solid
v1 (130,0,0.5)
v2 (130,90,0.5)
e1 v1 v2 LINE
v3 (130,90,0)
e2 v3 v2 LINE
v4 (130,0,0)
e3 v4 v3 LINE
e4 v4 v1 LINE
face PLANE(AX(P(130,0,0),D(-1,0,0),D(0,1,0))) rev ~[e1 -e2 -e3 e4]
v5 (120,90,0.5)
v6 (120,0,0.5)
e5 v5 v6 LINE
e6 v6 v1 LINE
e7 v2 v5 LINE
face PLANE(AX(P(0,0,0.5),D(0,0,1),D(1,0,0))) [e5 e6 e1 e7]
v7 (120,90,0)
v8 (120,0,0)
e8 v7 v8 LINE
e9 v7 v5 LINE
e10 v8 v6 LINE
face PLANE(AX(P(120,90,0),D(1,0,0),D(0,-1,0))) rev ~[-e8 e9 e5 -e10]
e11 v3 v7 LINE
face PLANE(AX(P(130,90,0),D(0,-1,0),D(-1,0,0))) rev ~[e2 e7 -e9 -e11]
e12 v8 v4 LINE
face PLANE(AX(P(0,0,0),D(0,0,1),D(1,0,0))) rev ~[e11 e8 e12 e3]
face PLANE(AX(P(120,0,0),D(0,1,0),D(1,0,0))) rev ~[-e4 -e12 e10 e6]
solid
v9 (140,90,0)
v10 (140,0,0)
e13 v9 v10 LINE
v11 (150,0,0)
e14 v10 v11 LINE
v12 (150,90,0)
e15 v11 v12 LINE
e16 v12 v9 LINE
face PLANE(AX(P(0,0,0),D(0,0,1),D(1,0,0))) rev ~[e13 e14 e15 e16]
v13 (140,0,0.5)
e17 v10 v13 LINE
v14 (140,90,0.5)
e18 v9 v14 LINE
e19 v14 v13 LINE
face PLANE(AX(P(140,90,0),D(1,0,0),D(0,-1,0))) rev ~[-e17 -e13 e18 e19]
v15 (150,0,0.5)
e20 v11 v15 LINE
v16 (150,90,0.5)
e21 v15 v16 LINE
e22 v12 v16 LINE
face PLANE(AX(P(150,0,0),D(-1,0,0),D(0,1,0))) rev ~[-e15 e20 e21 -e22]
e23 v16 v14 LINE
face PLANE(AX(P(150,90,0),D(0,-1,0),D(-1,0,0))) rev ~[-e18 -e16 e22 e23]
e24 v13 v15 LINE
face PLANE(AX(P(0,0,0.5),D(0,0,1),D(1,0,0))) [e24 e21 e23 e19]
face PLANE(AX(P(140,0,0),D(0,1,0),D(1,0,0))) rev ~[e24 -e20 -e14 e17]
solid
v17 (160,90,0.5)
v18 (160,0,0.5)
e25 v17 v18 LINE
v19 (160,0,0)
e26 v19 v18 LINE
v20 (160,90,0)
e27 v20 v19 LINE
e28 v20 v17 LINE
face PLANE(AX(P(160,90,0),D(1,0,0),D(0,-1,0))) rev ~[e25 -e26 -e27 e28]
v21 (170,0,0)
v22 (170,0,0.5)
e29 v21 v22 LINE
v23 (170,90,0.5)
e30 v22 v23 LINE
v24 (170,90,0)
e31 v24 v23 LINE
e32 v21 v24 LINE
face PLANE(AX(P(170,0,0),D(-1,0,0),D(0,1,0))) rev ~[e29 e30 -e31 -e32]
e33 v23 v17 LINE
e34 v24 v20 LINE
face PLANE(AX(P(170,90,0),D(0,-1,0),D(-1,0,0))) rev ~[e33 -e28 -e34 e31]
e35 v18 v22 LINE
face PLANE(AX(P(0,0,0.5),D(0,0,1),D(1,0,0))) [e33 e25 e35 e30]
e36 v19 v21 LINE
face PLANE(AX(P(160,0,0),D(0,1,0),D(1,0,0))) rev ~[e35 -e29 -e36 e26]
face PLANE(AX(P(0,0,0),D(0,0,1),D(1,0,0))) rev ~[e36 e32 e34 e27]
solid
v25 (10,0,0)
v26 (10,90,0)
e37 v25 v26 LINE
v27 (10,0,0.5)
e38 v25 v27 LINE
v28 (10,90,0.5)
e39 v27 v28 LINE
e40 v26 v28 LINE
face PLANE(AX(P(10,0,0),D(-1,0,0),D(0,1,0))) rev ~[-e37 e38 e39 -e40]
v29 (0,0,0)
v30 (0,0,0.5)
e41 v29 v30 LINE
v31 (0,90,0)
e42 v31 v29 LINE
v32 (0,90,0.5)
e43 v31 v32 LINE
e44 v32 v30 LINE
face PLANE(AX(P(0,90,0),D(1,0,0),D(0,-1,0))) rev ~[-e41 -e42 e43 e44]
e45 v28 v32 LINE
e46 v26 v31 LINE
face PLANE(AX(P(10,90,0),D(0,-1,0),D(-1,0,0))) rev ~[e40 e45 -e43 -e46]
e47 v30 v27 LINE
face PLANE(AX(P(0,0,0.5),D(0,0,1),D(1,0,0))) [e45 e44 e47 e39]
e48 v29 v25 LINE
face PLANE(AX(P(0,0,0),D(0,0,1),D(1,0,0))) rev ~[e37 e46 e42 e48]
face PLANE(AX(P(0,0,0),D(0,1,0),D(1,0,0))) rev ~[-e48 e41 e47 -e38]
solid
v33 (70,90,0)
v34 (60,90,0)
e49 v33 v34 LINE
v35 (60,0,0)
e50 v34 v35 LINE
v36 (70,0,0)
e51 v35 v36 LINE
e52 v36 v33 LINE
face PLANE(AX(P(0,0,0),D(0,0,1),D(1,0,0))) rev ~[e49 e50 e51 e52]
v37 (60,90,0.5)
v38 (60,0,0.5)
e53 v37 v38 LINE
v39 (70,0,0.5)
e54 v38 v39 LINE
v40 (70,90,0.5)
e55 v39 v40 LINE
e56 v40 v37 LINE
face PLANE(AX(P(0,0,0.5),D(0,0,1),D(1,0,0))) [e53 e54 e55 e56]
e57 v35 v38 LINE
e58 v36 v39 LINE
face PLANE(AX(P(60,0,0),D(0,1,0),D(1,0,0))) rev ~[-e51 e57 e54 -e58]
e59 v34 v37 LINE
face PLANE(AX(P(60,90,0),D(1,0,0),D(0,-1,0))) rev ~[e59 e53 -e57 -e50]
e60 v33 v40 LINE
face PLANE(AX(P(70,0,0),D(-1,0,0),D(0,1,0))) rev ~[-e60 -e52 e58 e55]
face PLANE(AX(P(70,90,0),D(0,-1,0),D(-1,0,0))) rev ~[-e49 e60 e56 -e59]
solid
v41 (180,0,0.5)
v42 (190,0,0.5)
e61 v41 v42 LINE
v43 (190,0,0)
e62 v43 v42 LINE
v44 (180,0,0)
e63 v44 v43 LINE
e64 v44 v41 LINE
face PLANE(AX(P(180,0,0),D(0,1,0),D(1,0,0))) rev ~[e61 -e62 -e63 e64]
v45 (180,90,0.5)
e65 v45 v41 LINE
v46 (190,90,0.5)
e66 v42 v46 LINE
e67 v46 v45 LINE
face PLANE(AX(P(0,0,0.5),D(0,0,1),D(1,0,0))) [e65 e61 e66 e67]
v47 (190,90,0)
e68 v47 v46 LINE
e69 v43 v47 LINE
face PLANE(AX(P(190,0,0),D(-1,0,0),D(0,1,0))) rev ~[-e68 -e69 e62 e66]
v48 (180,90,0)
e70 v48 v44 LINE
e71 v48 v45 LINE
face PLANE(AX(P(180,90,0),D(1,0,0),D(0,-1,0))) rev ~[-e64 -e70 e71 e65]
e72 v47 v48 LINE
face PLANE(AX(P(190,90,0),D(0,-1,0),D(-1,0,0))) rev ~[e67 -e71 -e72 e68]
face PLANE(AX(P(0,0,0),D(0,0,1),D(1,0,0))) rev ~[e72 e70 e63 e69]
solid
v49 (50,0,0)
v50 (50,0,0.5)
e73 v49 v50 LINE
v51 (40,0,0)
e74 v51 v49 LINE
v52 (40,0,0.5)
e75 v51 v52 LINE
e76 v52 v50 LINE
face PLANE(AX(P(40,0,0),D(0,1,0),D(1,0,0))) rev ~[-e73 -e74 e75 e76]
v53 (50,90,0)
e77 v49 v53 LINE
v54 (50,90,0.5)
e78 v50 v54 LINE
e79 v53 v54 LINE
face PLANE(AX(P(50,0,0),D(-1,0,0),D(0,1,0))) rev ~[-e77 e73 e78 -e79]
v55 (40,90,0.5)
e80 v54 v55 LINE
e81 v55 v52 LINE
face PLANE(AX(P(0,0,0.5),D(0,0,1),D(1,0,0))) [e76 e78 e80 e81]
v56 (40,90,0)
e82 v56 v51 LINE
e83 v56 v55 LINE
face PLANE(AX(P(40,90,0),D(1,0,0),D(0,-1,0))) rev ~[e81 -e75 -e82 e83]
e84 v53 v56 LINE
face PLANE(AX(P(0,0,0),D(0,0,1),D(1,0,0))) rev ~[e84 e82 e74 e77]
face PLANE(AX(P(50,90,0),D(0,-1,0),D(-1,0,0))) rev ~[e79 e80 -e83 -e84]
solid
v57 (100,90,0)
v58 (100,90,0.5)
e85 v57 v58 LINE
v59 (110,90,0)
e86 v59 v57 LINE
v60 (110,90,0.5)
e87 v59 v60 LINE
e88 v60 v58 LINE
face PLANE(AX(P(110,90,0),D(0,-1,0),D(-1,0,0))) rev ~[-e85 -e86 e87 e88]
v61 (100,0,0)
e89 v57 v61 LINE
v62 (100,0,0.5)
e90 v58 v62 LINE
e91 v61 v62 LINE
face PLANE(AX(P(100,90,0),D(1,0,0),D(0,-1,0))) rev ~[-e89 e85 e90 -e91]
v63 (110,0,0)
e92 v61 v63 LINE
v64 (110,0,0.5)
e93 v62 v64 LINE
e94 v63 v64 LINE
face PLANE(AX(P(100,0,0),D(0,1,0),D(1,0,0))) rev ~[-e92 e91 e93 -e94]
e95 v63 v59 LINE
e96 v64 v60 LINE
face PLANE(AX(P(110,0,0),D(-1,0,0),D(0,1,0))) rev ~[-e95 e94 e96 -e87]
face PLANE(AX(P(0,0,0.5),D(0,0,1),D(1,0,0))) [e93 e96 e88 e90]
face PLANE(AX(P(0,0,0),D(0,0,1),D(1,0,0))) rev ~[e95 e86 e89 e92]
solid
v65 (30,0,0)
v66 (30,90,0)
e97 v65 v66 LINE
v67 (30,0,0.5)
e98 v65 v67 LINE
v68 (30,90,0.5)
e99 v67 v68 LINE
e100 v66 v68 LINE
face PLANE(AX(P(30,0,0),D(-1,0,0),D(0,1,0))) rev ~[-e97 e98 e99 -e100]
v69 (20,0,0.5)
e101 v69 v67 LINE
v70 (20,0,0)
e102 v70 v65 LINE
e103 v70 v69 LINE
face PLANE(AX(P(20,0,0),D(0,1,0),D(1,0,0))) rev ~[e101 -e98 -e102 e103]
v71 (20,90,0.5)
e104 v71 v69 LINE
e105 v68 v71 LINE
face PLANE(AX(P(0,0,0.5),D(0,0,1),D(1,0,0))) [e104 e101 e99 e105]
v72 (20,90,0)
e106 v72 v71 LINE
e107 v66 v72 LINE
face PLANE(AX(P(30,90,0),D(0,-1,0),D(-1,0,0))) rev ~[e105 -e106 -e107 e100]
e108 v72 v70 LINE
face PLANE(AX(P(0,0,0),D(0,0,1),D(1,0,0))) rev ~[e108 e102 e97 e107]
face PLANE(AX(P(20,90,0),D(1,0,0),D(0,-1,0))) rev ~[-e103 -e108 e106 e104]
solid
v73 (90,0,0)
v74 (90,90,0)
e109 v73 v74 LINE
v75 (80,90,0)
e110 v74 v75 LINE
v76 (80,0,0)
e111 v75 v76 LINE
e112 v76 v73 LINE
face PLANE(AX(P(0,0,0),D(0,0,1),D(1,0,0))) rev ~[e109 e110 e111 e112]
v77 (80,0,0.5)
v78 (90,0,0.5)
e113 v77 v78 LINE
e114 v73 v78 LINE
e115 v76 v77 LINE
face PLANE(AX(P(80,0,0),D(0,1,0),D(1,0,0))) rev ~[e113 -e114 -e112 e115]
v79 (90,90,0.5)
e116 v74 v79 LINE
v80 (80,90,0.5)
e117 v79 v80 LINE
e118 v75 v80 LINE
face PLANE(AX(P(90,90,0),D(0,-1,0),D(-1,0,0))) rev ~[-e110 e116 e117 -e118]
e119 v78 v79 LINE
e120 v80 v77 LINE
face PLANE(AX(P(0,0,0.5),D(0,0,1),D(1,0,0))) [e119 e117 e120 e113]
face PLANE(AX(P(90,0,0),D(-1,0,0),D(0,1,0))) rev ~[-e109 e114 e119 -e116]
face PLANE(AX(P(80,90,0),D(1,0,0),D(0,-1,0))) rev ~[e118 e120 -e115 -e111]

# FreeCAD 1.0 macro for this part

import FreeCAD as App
import Part
import Sketcher

V = App.Vector
Q = App.Units.Quantity

doc = App.newDocument("Part")
body = doc.addObject("PartDesign::Body", "Body")
body.AllowCompound = True

# Sketch on XY plane
sketch1 = body.newObject("Sketcher::SketchObject", "Sketch")
sketch1.AttachmentSupport = (doc.getObject("XY_Plane"), [""])
sketch1.MapMode = "FlatFace"
sketch1.addGeometry(Part.LineSegment(V(0, 90, 0), V(0, 0, 0)), False)
sketch1.addGeometry(Part.LineSegment(V(0, 0, 0), V(10, 0, 0)), False)
sketch1.addGeometry(Part.LineSegment(V(10, 0, 0), V(10, 90, 0)), False)
sketch1.addGeometry(Part.LineSegment(V(10, 90, 0), V(0, 90, 0)), False)
sketch1.addGeometry(Part.LineSegment(V(30, 90, 0), V(20, 90, 0)), False)
sketch1.addGeometry(Part.LineSegment(V(20, 90, 0), V(20, 0, 0)), False)
sketch1.addGeometry(Part.LineSegment(V(20, 0, 0), V(30, 0, 0)), False)
sketch1.addGeometry(Part.LineSegment(V(30, 0, 0), V(30, 90, 0)), False)
sketch1.addGeometry(Part.LineSegment(V(50, 90, 0), V(40, 90, 0)), False)
sketch1.addGeometry(Part.LineSegment(V(40, 90, 0), V(40, 0, 0)), False)
sketch1.addGeometry(Part.LineSegment(V(40, 0, 0), V(50, 0, 0)), False)
sketch1.addGeometry(Part.LineSegment(V(50, 0, 0), V(50, 90, 0)), False)
sketch1.addGeometry(Part.LineSegment(V(70, 90, 0), V(60, 90, 0)), False)
sketch1.addGeometry(Part.LineSegment(V(60, 90, 0), V(60, 0, 0)), False)
sketch1.addGeometry(Part.LineSegment(V(60, 0, 0), V(70, 0, 0)), False)
sketch1.addGeometry(Part.LineSegment(V(70, 0, 0), V(70, 90, 0)), False)
sketch1.addGeometry(Part.LineSegment(V(90, 90, 0), V(80, 90, 0)), False)
sketch1.addGeometry(Part.LineSegment(V(80, 90, 0), V(80, 0, 0)), False)
sketch1.addGeometry(Part.LineSegment(V(80, 0, 0), V(90, 0, 0)), False)
sketch1.addGeometry(Part.LineSegment(V(90, 0, 0), V(90, 90, 0)), False)
sketch1.addGeometry(Part.LineSegment(V(110, 90, 0), V(100, 90, 0)), False)
sketch1.addGeometry(Part.LineSegment(V(100, 90, 0), V(100, 0, 0)), False)
sketch1.addGeometry(Part.LineSegment(V(100, 0, 0), V(110, 0, 0)), False)
sketch1.addGeometry(Part.LineSegment(V(110, 0, 0), V(110, 90, 0)), False)
sketch1.addGeometry(Part.LineSegment(V(130, 90, 0), V(120, 90, 0)), False)
sketch1.addGeometry(Part.LineSegment(V(120, 90, 0), V(120, 0, 0)), False)
sketch1.addGeometry(Part.LineSegment(V(120, 0, 0), V(130, 0, 0)), False)
sketch1.addGeometry(Part.LineSegment(V(130, 0, 0), V(130, 90, 0)), False)
sketch1.addGeometry(Part.LineSegment(V(150, 90, 0), V(140, 90, 0)), False)
sketch1.addGeometry(Part.LineSegment(V(140, 90, 0), V(140, 0, 0)), False)
sketch1.addGeometry(Part.LineSegment(V(140, 0, 0), V(150, 0, 0)), False)
sketch1.addGeometry(Part.LineSegment(V(150, 0, 0), V(150, 90, 0)), False)
sketch1.addGeometry(Part.LineSegment(V(170, 90, 0), V(160, 90, 0)), False)
sketch1.addGeometry(Part.LineSegment(V(160, 90, 0), V(160, 0, 0)), False)
sketch1.addGeometry(Part.LineSegment(V(160, 0, 0), V(170, 0, 0)), False)
sketch1.addGeometry(Part.LineSegment(V(170, 0, 0), V(170, 90, 0)), False)
sketch1.addGeometry(Part.LineSegment(V(190, 90, 0), V(180, 90, 0)), False)
sketch1.addGeometry(Part.LineSegment(V(180, 90, 0), V(180, 0, 0)), False)
sketch1.addGeometry(Part.LineSegment(V(180, 0, 0), V(190, 0, 0)), False)
sketch1.addGeometry(Part.LineSegment(V(190, 0, 0), V(190, 90, 0)), False)
sketch1.addConstraint(Sketcher.Constraint("Coincident", 0, 2, 1, 1))
sketch1.addConstraint(Sketcher.Constraint("Coincident", 1, 2, 2, 1))
sketch1.addConstraint(Sketcher.Constraint("Coincident", 2, 2, 3, 1))
sketch1.addConstraint(Sketcher.Constraint("Coincident", 3, 2, 0, 1))
sketch1.addConstraint(Sketcher.Constraint("Coincident", 4, 2, 5, 1))
sketch1.addConstraint(Sketcher.Constraint("Coincident", 5, 2, 6, 1))
sketch1.addConstraint(Sketcher.Constraint("Coincident", 6, 2, 7, 1))
sketch1.addConstraint(Sketcher.Constraint("Coincident", 7, 2, 4, 1))
sketch1.addConstraint(Sketcher.Constraint("Coincident", 8, 2, 9, 1))
sketch1.addConstraint(Sketcher.Constraint("Coincident", 9, 2, 10, 1))
sketch1.addConstraint(Sketcher.Constraint("Coincident", 10, 2, 11, 1))
sketch1.addConstraint(Sketcher.Constraint("Coincident", 11, 2, 8, 1))
sketch1.addConstraint(Sketcher.Constraint("Coincident", 12, 2, 13, 1))
sketch1.addConstraint(Sketcher.Constraint("Coincident", 13, 2, 14, 1))
sketch1.addConstraint(Sketcher.Constraint("Coincident", 14, 2, 15, 1))
sketch1.addConstraint(Sketcher.Constraint("Coincident", 15, 2, 12, 1))
sketch1.addConstraint(Sketcher.Constraint("Coincident", 16, 2, 17, 1))
sketch1.addConstraint(Sketcher.Constraint("Coincident", 17, 2, 18, 1))
sketch1.addConstraint(Sketcher.Constraint("Coincident", 18, 2, 19, 1))
sketch1.addConstraint(Sketcher.Constraint("Coincident", 19, 2, 16, 1))
sketch1.addConstraint(Sketcher.Constraint("Coincident", 20, 2, 21, 1))
sketch1.addConstraint(Sketcher.Constraint("Coincident", 21, 2, 22, 1))
sketch1.addConstraint(Sketcher.Constraint("Coincident", 22, 2, 23, 1))
sketch1.addConstraint(Sketcher.Constraint("Coincident", 23, 2, 20, 1))
sketch1.addConstraint(Sketcher.Constraint("Coincident", 24, 2, 25, 1))
sketch1.addConstraint(Sketcher.Constraint("Coincident", 25, 2, 26, 1))
sketch1.addConstraint(Sketcher.Constraint("Coincident", 26, 2, 27, 1))
sketch1.addConstraint(Sketcher.Constraint("Coincident", 27, 2, 24, 1))
sketch1.addConstraint(Sketcher.Constraint("Coincident", 28, 2, 29, 1))
sketch1.addConstraint(Sketcher.Constraint("Coincident", 29, 2, 30, 1))
sketch1.addConstraint(Sketcher.Constraint("Coincident", 30, 2, 31, 1))
sketch1.addConstraint(Sketcher.Constraint("Coincident", 31, 2, 28, 1))
sketch1.addConstraint(Sketcher.Constraint("Coincident", 32, 2, 33, 1))
sketch1.addConstraint(Sketcher.Constraint("Coincident", 33, 2, 34, 1))
sketch1.addConstraint(Sketcher.Constraint("Coincident", 34, 2, 35, 1))
sketch1.addConstraint(Sketcher.Constraint("Coincident", 35, 2, 32, 1))
sketch1.addConstraint(Sketcher.Constraint("Coincident", 36, 2, 37, 1))
sketch1.addConstraint(Sketcher.Constraint("Coincident", 37, 2, 38, 1))
sketch1.addConstraint(Sketcher.Constraint("Coincident", 38, 2, 39, 1))
sketch1.addConstraint(Sketcher.Constraint("Coincident", 39, 2, 36, 1))
sketch1.addConstraint(Sketcher.Constraint("Vertical", 0))
sketch1.addConstraint(Sketcher.Constraint("Horizontal", 1))
sketch1.addConstraint(Sketcher.Constraint("Vertical", 2))
sketch1.addConstraint(Sketcher.Constraint("Horizontal", 3))
sketch1.addConstraint(Sketcher.Constraint("Horizontal", 4))
sketch1.addConstraint(Sketcher.Constraint("Vertical", 5))
sketch1.addConstraint(Sketcher.Constraint("Horizontal", 6))
sketch1.addConstraint(Sketcher.Constraint("Vertical", 7))
sketch1.addConstraint(Sketcher.Constraint("Horizontal", 8))
sketch1.addConstraint(Sketcher.Constraint("Vertical", 9))
sketch1.addConstraint(Sketcher.Constraint("Horizontal", 10))
sketch1.addConstraint(Sketcher.Constraint("Vertical", 11))
sketch1.addConstraint(Sketcher.Constraint("Horizontal", 12))
sketch1.addConstraint(Sketcher.Constraint("Vertical", 13))
sketch1.addConstraint(Sketcher.Constraint("Horizontal", 14))
sketch1.addConstraint(Sketcher.Constraint("Vertical", 15))
sketch1.addConstraint(Sketcher.Constraint("Horizontal", 16))
sketch1.addConstraint(Sketcher.Constraint("Vertical", 17))
sketch1.addConstraint(Sketcher.Constraint("Horizontal", 18))
sketch1.addConstraint(Sketcher.Constraint("Vertical", 19))
sketch1.addConstraint(Sketcher.Constraint("Horizontal", 20))
sketch1.addConstraint(Sketcher.Constraint("Vertical", 21))
sketch1.addConstraint(Sketcher.Constraint("Horizontal", 22))
sketch1.addConstraint(Sketcher.Constraint("Vertical", 23))
sketch1.addConstraint(Sketcher.Constraint("Horizontal", 24))
sketch1.addConstraint(Sketcher.Constraint("Vertical", 25))
sketch1.addConstraint(Sketcher.Constraint("Horizontal", 26))
sketch1.addConstraint(Sketcher.Constraint("Vertical", 27))
sketch1.addConstraint(Sketcher.Constraint("Horizontal", 28))
sketch1.addConstraint(Sketcher.Constraint("Vertical", 29))
sketch1.addConstraint(Sketcher.Constraint("Horizontal", 30))
sketch1.addConstraint(Sketcher.Constraint("Vertical", 31))
sketch1.addConstraint(Sketcher.Constraint("Horizontal", 32))
sketch1.addConstraint(Sketcher.Constraint("Vertical", 33))
sketch1.addConstraint(Sketcher.Constraint("Horizontal", 34))
sketch1.addConstraint(Sketcher.Constraint("Vertical", 35))
sketch1.addConstraint(Sketcher.Constraint("Horizontal", 36))
sketch1.addConstraint(Sketcher.Constraint("Vertical", 37))
sketch1.addConstraint(Sketcher.Constraint("Horizontal", 38))
sketch1.addConstraint(Sketcher.Constraint("Vertical", 39))
sketch1.addConstraint(Sketcher.Constraint("Coincident", 0, 2, -1, 1))
sketch1.addConstraint(Sketcher.Constraint("PointOnObject", 5, 2, -1))
sketch1.addConstraint(Sketcher.Constraint("PointOnObject", 9, 2, -1))
sketch1.addConstraint(Sketcher.Constraint("PointOnObject", 13, 2, -1))
sketch1.addConstraint(Sketcher.Constraint("PointOnObject", 17, 2, -1))
sketch1.addConstraint(Sketcher.Constraint("PointOnObject", 21, 2, -1))
sketch1.addConstraint(Sketcher.Constraint("PointOnObject", 25, 2, -1))
sketch1.addConstraint(Sketcher.Constraint("PointOnObject", 29, 2, -1))
sketch1.addConstraint(Sketcher.Constraint("PointOnObject", 33, 2, -1))
sketch1.addConstraint(Sketcher.Constraint("PointOnObject", 37, 2, -1))
sketch1.addConstraint(Sketcher.Constraint("Horizontal", 3, 2, 4, 2))
sketch1.addConstraint(Sketcher.Constraint("Horizontal", 7, 2, 8, 2))
sketch1.addConstraint(Sketcher.Constraint("Horizontal", 11, 2, 12, 2))
sketch1.addConstraint(Sketcher.Constraint("Horizontal", 15, 2, 16, 2))
sketch1.addConstraint(Sketcher.Constraint("Horizontal", 19, 2, 20, 2))
sketch1.addConstraint(Sketcher.Constraint("Horizontal", 23, 2, 24, 2))
sketch1.addConstraint(Sketcher.Constraint("Horizontal", 27, 2, 28, 2))
sketch1.addConstraint(Sketcher.Constraint("Horizontal", 31, 2, 32, 2))
sketch1.addConstraint(Sketcher.Constraint("Horizontal", 35, 2, 36, 2))
sketch1.addConstraint(Sketcher.Constraint("Equal", 3, 4))
sketch1.addConstraint(Sketcher.Constraint("Equal", 6, 8))
sketch1.addConstraint(Sketcher.Constraint("Equal", 10, 12))
sketch1.addConstraint(Sketcher.Constraint("Equal", 14, 16))
sketch1.addConstraint(Sketcher.Constraint("Equal", 18, 20))
sketch1.addConstraint(Sketcher.Constraint("Equal", 22, 24))
sketch1.addConstraint(Sketcher.Constraint("Equal", 26, 28))
sketch1.addConstraint(Sketcher.Constraint("Equal", 30, 32))
sketch1.addConstraint(Sketcher.Constraint("Equal", 34, 36))
sketch1.addConstraint(Sketcher.Constraint("DistanceX", 1, 1, 1, 2, Q("10 mm")))
sketch1.addConstraint(Sketcher.Constraint("DistanceY", 0, 2, 0, 1, Q("90 mm")))
sketch1.addConstraint(Sketcher.Constraint("DistanceX", -1, 1, 4, 2, Q("20 mm")))
sketch1.addConstraint(Sketcher.Constraint("DistanceX", -1, 1, 18, 2, Q("90 mm")))
sketch1.addConstraint(Sketcher.Constraint("DistanceX", 7, 2, 8, 2, Q("10 mm")))
sketch1.addConstraint(Sketcher.Constraint("DistanceX", 11, 2, 12, 2, Q("10 mm")))
sketch1.addConstraint(Sketcher.Constraint("DistanceX", 19, 2, 20, 2, Q("10 mm")))
sketch1.addConstraint(Sketcher.Constraint("DistanceX", 23, 2, 24, 2, Q("10 mm")))
sketch1.addConstraint(Sketcher.Constraint("DistanceX", 27, 2, 28, 2, Q("10 mm")))
sketch1.addConstraint(Sketcher.Constraint("DistanceX", 31, 2, 32, 2, Q("10 mm")))
sketch1.addConstraint(Sketcher.Constraint("DistanceX", 35, 2, 36, 2, Q("10 mm")))
pad1 = body.newObject("PartDesign::Pad", "Pad")
pad1.Profile = sketch1
pad1.Length = 0.5

doc.recompute()
